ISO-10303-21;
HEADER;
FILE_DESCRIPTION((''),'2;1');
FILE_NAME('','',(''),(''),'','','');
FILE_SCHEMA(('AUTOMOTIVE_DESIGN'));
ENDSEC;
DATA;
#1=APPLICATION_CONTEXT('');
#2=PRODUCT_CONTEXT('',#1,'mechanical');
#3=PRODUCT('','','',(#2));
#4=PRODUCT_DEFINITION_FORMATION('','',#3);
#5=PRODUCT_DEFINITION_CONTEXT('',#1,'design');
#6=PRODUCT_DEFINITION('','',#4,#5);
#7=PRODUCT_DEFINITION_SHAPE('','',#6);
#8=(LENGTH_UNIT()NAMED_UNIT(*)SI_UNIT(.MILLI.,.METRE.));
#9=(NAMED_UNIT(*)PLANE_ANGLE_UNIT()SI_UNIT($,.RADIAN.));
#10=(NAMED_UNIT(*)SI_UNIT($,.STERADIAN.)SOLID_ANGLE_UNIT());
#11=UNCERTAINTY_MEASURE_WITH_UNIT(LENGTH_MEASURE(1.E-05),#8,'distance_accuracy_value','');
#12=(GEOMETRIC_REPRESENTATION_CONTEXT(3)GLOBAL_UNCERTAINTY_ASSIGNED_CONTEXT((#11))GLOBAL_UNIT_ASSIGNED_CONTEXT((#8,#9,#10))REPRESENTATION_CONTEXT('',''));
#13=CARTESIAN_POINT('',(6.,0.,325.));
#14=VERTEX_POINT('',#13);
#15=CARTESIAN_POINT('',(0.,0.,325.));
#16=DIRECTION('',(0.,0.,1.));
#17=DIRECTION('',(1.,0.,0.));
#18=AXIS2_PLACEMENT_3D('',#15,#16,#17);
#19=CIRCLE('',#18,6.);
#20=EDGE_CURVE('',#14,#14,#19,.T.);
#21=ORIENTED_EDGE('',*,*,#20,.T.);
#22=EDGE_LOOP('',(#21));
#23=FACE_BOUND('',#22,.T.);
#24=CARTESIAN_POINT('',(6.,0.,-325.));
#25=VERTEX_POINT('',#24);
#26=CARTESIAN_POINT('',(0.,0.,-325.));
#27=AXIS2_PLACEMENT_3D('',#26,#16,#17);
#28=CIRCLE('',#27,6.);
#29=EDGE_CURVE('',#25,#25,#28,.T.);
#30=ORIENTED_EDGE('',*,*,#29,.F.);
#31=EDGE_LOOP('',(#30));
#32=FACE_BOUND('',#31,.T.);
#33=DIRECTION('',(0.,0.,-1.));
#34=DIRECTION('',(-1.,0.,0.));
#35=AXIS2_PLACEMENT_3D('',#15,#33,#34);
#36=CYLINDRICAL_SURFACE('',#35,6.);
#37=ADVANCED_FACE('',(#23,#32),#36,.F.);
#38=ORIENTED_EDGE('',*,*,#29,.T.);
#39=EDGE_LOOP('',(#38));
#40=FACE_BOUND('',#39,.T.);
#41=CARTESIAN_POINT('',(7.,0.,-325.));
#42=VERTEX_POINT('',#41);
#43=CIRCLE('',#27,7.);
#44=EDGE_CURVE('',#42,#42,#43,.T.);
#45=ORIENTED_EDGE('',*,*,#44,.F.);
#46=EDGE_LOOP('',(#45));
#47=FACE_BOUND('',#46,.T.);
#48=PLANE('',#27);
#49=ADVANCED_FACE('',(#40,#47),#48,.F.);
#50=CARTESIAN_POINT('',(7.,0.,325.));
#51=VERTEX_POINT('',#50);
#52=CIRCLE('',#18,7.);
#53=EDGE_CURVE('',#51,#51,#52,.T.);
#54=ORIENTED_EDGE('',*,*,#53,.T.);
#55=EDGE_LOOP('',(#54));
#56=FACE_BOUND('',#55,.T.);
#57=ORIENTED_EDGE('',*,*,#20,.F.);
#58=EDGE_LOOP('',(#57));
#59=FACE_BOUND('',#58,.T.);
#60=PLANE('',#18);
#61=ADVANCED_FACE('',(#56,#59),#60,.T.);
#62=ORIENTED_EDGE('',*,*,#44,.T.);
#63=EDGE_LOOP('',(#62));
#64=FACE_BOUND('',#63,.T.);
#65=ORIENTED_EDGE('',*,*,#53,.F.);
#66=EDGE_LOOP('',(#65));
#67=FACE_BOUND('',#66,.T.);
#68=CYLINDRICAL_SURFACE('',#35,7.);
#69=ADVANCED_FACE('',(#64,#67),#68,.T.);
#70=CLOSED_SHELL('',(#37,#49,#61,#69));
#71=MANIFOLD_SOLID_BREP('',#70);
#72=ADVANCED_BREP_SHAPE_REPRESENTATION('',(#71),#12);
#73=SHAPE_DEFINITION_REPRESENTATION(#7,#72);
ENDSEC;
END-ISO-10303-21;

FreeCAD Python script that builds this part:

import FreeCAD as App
import Part
import Sketcher
from FreeCAD import Vector
Q = App.Units.Quantity

doc = App.newDocument("Part")
params = doc.addObject("Spreadsheet::Sheet", "Params")
for row, (alias, value) in enumerate([
    ("sketch1_diameter", "14 mm"),
    ("sketch1_diameter2", "12 mm"),
    ("pad1_length", "650 mm"),
], start=1):
    params.set(f"A{row}", alias)
    params.set(f"B{row}", "=" + value)
    params.setAlias(f"B{row}", alias)

body = doc.addObject("PartDesign::Body", "Body")

# Sketch on XY plane
sketch1 = doc.addObject("Sketcher::SketchObject", "Sketch")
body.addObject(sketch1)
sketch1.AttachmentSupport = (doc.XY_Plane, [""])
sketch1.MapMode = "FlatFace"
sketch1.addGeometry([
    Part.Circle(Vector(0, 0, 0), Vector(0, 0, 1), 7),
    Part.Circle(Vector(0, 0, 0), Vector(0, 0, 1), 6),
], False)
sketch1.addConstraint([
    Sketcher.Constraint("Coincident", 0, 3, -1, 1),
    Sketcher.Constraint("Coincident", 1, 3, -1, 1),
    Sketcher.Constraint("Diameter", 0, Q("14 mm")),
    Sketcher.Constraint("Diameter", 1, Q("12 mm")),
])
sketch1.setExpression("Constraints[2]", "Params.sketch1_diameter")
sketch1.setExpression("Constraints[3]", "Params.sketch1_diameter2")
pad1 = doc.addObject("PartDesign::Pad", "Pad")
body.addObject(pad1)
pad1.Profile = sketch1
pad1.setExpression("Length", "Params.pad1_length")
pad1.Midplane = True

doc.recompute()
